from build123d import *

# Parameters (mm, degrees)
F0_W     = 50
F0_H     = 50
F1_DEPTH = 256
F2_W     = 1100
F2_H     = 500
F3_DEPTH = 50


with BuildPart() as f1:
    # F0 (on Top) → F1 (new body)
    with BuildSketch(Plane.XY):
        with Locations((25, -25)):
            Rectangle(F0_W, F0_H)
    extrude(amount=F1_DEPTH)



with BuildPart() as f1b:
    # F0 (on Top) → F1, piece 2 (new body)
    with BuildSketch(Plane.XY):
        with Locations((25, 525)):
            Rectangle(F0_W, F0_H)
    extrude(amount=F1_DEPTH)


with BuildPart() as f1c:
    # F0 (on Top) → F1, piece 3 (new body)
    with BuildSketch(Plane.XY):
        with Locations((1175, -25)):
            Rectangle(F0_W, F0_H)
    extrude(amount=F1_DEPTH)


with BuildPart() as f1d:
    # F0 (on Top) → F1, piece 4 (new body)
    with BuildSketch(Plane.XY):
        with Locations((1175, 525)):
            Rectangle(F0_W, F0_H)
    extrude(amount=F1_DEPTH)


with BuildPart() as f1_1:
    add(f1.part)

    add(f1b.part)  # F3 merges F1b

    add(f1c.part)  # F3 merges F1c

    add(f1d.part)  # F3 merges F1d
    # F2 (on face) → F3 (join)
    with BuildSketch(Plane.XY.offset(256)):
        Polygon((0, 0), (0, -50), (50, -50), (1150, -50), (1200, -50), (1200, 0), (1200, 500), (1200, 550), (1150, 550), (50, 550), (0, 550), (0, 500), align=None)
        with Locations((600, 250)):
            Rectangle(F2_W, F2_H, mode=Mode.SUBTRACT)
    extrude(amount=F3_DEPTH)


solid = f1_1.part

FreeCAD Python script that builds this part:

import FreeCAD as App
import Part
import Sketcher

V = App.Vector

doc = App.newDocument("Part")
body = doc.addObject("PartDesign::Body", "Body")

sketch1 = body.newObject("Sketcher::SketchObject", "Sketch")
sketch1.AttachmentSupport = (doc.getObject("XY_Plane"), [""])
sketch1.MapMode = "FlatFace"
sketch1.addGeometry([
    Part.LineSegment(V(0, 0, 0), V(0, -50, 0)),
    Part.LineSegment(V(0, -50, 0), V(50, -50, 0)),
    Part.LineSegment(V(50, -50, 0), V(50, 0, 0)),
    Part.LineSegment(V(50, 0, 0), V(0, 0, 0)),
], False)
sketch1.addConstraint([
    Sketcher.Constraint("Coincident", 0, 2, 1, 1),
    Sketcher.Constraint("Coincident", 1, 2, 2, 1),
    Sketcher.Constraint("Coincident", 2, 2, 3, 1),
    Sketcher.Constraint("Coincident", 3, 2, 0, 1),
    Sketcher.Constraint("Vertical", 0),
    Sketcher.Constraint("Horizontal", 1),
    Sketcher.Constraint("Vertical", 2),
    Sketcher.Constraint("Horizontal", 3),
    Sketcher.Constraint("Coincident", 3, 2, -1, 1),
    Sketcher.Constraint("Equal", 3, 0),
    Sketcher.Constraint("DistanceX", 1, 1, 1, 2, 50.0),
])
pad1 = body.newObject("PartDesign::Pad", "Pad")
pad1.Profile = sketch1
pad1.Length = 256
body2 = doc.addObject("PartDesign::Body", "Body001")

sketch2 = body2.newObject("Sketcher::SketchObject", "Sketch001")
sketch2.AttachmentSupport = (doc.getObject("XY_Plane001"), [""])
sketch2.MapMode = "FlatFace"
sketch2.addGeometry([
    Part.LineSegment(V(0, 550, 0), V(0, 500, 0)),
    Part.LineSegment(V(0, 500, 0), V(50, 500, 0)),
    Part.LineSegment(V(50, 500, 0), V(50, 550, 0)),
    Part.LineSegment(V(50, 550, 0), V(0, 550, 0)),
], False)
sketch2.addConstraint([
    Sketcher.Constraint("Coincident", 0, 2, 1, 1),
    Sketcher.Constraint("Coincident", 1, 2, 2, 1),
    Sketcher.Constraint("Coincident", 2, 2, 3, 1),
    Sketcher.Constraint("Coincident", 3, 2, 0, 1),
    Sketcher.Constraint("Vertical", 0),
    Sketcher.Constraint("Horizontal", 1),
    Sketcher.Constraint("Vertical", 2),
    Sketcher.Constraint("Horizontal", 3),
    Sketcher.Constraint("PointOnObject", 0, 2, -2),
    Sketcher.Constraint("Equal", 3, 0),
    Sketcher.Constraint("DistanceX", 1, 1, 1, 2, 50.0),
    Sketcher.Constraint("DistanceY", -1, 1, 0, 2, 500.0),
])
pad2 = body2.newObject("PartDesign::Pad", "Pad001")
pad2.Profile = sketch2
pad2.Length = 256
body3 = doc.addObject("PartDesign::Body", "Body002")

sketch3 = body3.newObject("Sketcher::SketchObject", "Sketch002")
sketch3.AttachmentSupport = (doc.getObject("XY_Plane002"), [""])
sketch3.MapMode = "FlatFace"
sketch3.addGeometry([
    Part.LineSegment(V(1150, 0, 0), V(1150, -50, 0)),
    Part.LineSegment(V(1150, -50, 0), V(1200, -50, 0)),
    Part.LineSegment(V(1200, -50, 0), V(1200, 0, 0)),
    Part.LineSegment(V(1200, 0, 0), V(1150, 0, 0)),
], False)
sketch3.addConstraint([
    Sketcher.Constraint("Coincident", 0, 2, 1, 1),
    Sketcher.Constraint("Coincident", 1, 2, 2, 1),
    Sketcher.Constraint("Coincident", 2, 2, 3, 1),
    Sketcher.Constraint("Coincident", 3, 2, 0, 1),
    Sketcher.Constraint("Vertical", 0),
    Sketcher.Constraint("Horizontal", 1),
    Sketcher.Constraint("Vertical", 2),
    Sketcher.Constraint("Horizontal", 3),
    Sketcher.Constraint("PointOnObject", 2, 2, -1),
    Sketcher.Constraint("Equal", 3, 0),
    Sketcher.Constraint("DistanceX", 1, 1, 1, 2, 50.0),
    Sketcher.Constraint("DistanceX", -1, 1, 0, 2, 1150.0),
])
pad3 = body3.newObject("PartDesign::Pad", "Pad002")
pad3.Profile = sketch3
pad3.Length = 256
body4 = doc.addObject("PartDesign::Body", "Body003")

sketch4 = body4.newObject("Sketcher::SketchObject", "Sketch003")
sketch4.AttachmentSupport = (doc.getObject("XY_Plane003"), [""])
sketch4.MapMode = "FlatFace"
sketch4.addGeometry([
    Part.LineSegment(V(1150, 550, 0), V(1150, 500, 0)),
    Part.LineSegment(V(1150, 500, 0), V(1200, 500, 0)),
    Part.LineSegment(V(1200, 500, 0), V(1200, 550, 0)),
    Part.LineSegment(V(1200, 550, 0), V(1150, 550, 0)),
], False)
sketch4.addConstraint([
    Sketcher.Constraint("Coincident", 0, 2, 1, 1),
    Sketcher.Constraint("Coincident", 1, 2, 2, 1),
    Sketcher.Constraint("Coincident", 2, 2, 3, 1),
    Sketcher.Constraint("Coincident", 3, 2, 0, 1),
    Sketcher.Constraint("Vertical", 0),
    Sketcher.Constraint("Horizontal", 1),
    Sketcher.Constraint("Vertical", 2),
    Sketcher.Constraint("Horizontal", 3),
    Sketcher.Constraint("Equal", 3, 0),
    Sketcher.Constraint("DistanceX", 1, 1, 1, 2, 50.0),
    Sketcher.Constraint("DistanceX", -1, 1, 0, 2, 1150.0),
    Sketcher.Constraint("DistanceY", -1, 1, 0, 2, 500.0),
])
pad4 = body4.newObject("PartDesign::Pad", "Pad003")
pad4.Profile = sketch4
pad4.Length = 256
body.AllowCompound = True
doc.recompute()

boolean = body.newObject("PartDesign::Boolean", "Boolean")
boolean.Type = "Fuse"
boolean.addObjects([body2])
doc.recompute()

boolean2 = body.newObject("PartDesign::Boolean", "Boolean001")
boolean2.Type = "Fuse"
boolean2.addObjects([body3])
doc.recompute()

boolean3 = body.newObject("PartDesign::Boolean", "Boolean002")
boolean3.Type = "Fuse"
boolean3.addObjects([body4])

sketch5 = body.newObject("Sketcher::SketchObject", "Sketch004")
sketch5.AttachmentSupport = (doc.getObject("XY_Plane"), [""])
sketch5.MapMode = "FlatFace"
sketch5.AttachmentOffset = App.Placement(V(0, 0, 256), App.Rotation())
sketch5.addGeometry([
    Part.LineSegment(V(0, -50, 0), V(1200, -50, 0)),
    Part.LineSegment(V(1200, -50, 0), V(1200, 550, 0)),
    Part.LineSegment(V(1200, 550, 0), V(0, 550, 0)),
    Part.LineSegment(V(0, 550, 0), V(0, -50, 0)),
    Part.LineSegment(V(1150, 0, 0), V(50, 0, 0)),
    Part.LineSegment(V(50, 0, 0), V(50, 500, 0)),
    Part.LineSegment(V(50, 500, 0), V(1150, 500, 0)),
    Part.LineSegment(V(1150, 500, 0), V(1150, 0, 0)),
], False)
sketch5.addConstraint([
    Sketcher.Constraint("Coincident", 0, 2, 1, 1),
    Sketcher.Constraint("Coincident", 1, 2, 2, 1),
    Sketcher.Constraint("Coincident", 2, 2, 3, 1),
    Sketcher.Constraint("Coincident", 3, 2, 0, 1),
    Sketcher.Constraint("Coincident", 4, 2, 5, 1),
    Sketcher.Constraint("Coincident", 5, 2, 6, 1),
    Sketcher.Constraint("Coincident", 6, 2, 7, 1),
    Sketcher.Constraint("Coincident", 7, 2, 4, 1),
    Sketcher.Constraint("Horizontal", 0),
    Sketcher.Constraint("Vertical", 1),
    Sketcher.Constraint("Horizontal", 2),
    Sketcher.Constraint("Vertical", 3),
    Sketcher.Constraint("Horizontal", 4),
    Sketcher.Constraint("Vertical", 5),
    Sketcher.Constraint("Horizontal", 6),
    Sketcher.Constraint("Vertical", 7),
    Sketcher.Constraint("PointOnObject", 2, 2, -2),
    Sketcher.Constraint("PointOnObject", 4, 2, -1),
    Sketcher.Constraint("DistanceX", 0, 1, 0, 2, 1200.0),
    Sketcher.Constraint("DistanceX", 4, 2, 4, 1, 1100.0),
    Sketcher.Constraint("DistanceY", 1, 1, 1, 2, 600.0),
    Sketcher.Constraint("DistanceY", 5, 1, 5, 2, 500.0),
    Sketcher.Constraint("DistanceY", 0, 2, -1, 1, 50.0),
    Sketcher.Constraint("DistanceX", -1, 1, 4, 2, 50.0),
])
pad5 = body.newObject("PartDesign::Pad", "Pad004")
pad5.Profile = sketch5
pad5.Length = 50

doc.recompute()
